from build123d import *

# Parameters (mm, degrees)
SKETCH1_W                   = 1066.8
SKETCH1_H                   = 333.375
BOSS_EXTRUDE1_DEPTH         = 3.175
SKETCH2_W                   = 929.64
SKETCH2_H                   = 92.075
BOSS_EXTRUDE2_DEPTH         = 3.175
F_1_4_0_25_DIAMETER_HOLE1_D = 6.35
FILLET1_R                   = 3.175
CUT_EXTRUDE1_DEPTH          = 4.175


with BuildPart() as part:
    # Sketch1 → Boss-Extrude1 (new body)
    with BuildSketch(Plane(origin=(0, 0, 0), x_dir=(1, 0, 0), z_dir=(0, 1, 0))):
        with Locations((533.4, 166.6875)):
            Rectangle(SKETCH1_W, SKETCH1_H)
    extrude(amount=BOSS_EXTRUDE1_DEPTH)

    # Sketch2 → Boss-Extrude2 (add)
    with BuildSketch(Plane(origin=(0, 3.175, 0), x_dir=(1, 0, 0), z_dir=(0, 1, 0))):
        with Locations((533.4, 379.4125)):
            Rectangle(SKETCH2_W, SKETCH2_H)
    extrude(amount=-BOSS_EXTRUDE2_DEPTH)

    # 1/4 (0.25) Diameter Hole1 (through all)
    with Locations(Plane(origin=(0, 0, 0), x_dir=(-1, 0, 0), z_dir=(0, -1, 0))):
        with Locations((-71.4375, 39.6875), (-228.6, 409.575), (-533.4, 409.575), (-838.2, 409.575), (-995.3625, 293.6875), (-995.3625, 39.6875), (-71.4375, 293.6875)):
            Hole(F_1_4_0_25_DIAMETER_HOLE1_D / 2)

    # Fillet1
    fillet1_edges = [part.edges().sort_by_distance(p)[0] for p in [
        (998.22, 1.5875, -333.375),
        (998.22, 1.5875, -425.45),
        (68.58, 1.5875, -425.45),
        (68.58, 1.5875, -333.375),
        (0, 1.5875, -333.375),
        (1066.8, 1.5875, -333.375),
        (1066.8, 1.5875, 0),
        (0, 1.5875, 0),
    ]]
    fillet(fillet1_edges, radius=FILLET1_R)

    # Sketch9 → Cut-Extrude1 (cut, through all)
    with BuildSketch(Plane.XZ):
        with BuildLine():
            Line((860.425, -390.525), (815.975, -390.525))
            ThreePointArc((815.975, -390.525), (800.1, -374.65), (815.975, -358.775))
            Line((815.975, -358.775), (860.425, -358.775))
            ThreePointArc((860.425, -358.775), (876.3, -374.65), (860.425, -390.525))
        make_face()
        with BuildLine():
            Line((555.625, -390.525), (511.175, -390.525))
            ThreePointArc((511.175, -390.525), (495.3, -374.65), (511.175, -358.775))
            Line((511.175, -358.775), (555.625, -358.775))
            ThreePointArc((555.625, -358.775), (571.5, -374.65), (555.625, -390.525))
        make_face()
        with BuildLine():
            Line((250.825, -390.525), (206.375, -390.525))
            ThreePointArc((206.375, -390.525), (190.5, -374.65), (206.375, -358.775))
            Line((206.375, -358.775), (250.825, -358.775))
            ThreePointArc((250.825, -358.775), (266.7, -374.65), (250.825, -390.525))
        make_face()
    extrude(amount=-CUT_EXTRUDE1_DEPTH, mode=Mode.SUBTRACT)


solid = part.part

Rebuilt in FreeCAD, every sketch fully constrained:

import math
import FreeCAD as App
import Part
import Sketcher
Q = App.Units.Quantity


def edges_at(feature, points):
    """Names of the edges that pass closest to the given points."""
    edges = feature.Shape.Edges
    near = lambda p: min(range(len(edges)), key=lambda i: edges[i].distToShape(Part.Vertex(*p))[0])
    return sorted({f"Edge{near(p) + 1}" for p in points})


def add_polygon(sketch, points):
    """Adds a closed chain of lines whose ends are joined by coincident constraints."""
    first, n = sketch.GeometryCount, len(points)
    for a, b in zip(points, points[1:] + points[:1]):
        sketch.addGeometry(Part.LineSegment(App.Vector(*a, 0), App.Vector(*b, 0)), False)
    for i in range(n):
        sketch.addConstraint(Sketcher.Constraint("Coincident", first + i, 2, first + (i + 1) % n, 1))

doc = App.newDocument("Part")
params = doc.addObject("Spreadsheet::Sheet", "Params")
for row, (alias, value) in enumerate([
    ("sketch1_width", "42 in"),
    ("sketch1_height", "13.125 in"),
    ("pad1_length", "0.125 in"),
    ("sketch2_width", "36.6 in"),
    ("sketch2_height", "3.625 in"),
    ("pad2_length", "0.125 in"),
    ("sketch3_diameter", "0.25 in"),
    ("hole_diameter", "0.25 in"),
    ("fillet_radius", "0.125 in"),
    ("sketch4_radius", "0.625 in"),
    ("sketch4_width", "1.75 in"),
], start=1):
    params.set(f"A{row}", alias)
    params.set(f"B{row}", "=" + value)
    params.setAlias(f"B{row}", alias)

body = doc.addObject("PartDesign::Body", "Body")

sketch1 = body.newObject("Sketcher::SketchObject", "Sketch")
sketch1.AttachmentSupport = (doc.getObject("XZ_Plane"), [""])
sketch1.MapMode = "FlatFace"
add_polygon(sketch1, [(0, -333), (0, 0), (1067, 0), (1067, -333)])
sketch1.addConstraint(Sketcher.Constraint("Vertical", 0))
sketch1.addConstraint(Sketcher.Constraint("Horizontal", 1))
sketch1.addConstraint(Sketcher.Constraint("Vertical", 2))
sketch1.addConstraint(Sketcher.Constraint("Horizontal", 3))
sketch1.addConstraint(Sketcher.Constraint("Coincident", 0, 2, -1, 1))
sketch1.addConstraint(Sketcher.Constraint("DistanceX", 1, 1, 1, 2, Q("42 in")))
sketch1.addConstraint(Sketcher.Constraint("DistanceY", 0, 1, 0, 2, Q("13.125 in")))
sketch1.setExpression("Constraints[9]", "Params.sketch1_width")
sketch1.setExpression("Constraints[10]", "Params.sketch1_height")
pad1 = body.newObject("PartDesign::Pad", "Pad")
pad1.Profile = sketch1
pad1.setExpression("Length", "Params.pad1_length")
pad1.Reversed = True

sketch2 = body.newObject("Sketcher::SketchObject", "Sketch001")
sketch2.AttachmentSupport = (doc.getObject("XZ_Plane"), [""])
sketch2.MapMode = "FlatFace"
sketch2.AttachmentOffset = App.Placement(App.Vector(0, 0, -0.125 * 25.4), App.Rotation())
add_polygon(sketch2, [(69, -425), (69, -333), (998, -333), (998, -425)])
sketch2.addConstraint(Sketcher.Constraint("Vertical", 0))
sketch2.addConstraint(Sketcher.Constraint("Horizontal", 1))
sketch2.addConstraint(Sketcher.Constraint("Vertical", 2))
sketch2.addConstraint(Sketcher.Constraint("Horizontal", 3))
sketch2.addConstraint(Sketcher.Constraint("DistanceX", 1, 1, 1, 2, Q("36.6 in")))
sketch2.addConstraint(Sketcher.Constraint("DistanceX", -1, 1, 0, 2, Q("2.7 in")))
sketch2.addConstraint(Sketcher.Constraint("DistanceY", 0, 1, 0, 2, Q("3.625 in")))
sketch2.addConstraint(Sketcher.Constraint("DistanceY", 2, 2, -1, 1, Q("16.75 in")))
sketch2.setExpression("Constraints[8]", "Params.sketch2_width")
sketch2.setExpression("Constraints[10]", "Params.sketch2_height")
pad2 = body.newObject("PartDesign::Pad", "Pad001")
pad2.Profile = sketch2
pad2.setExpression("Length", "Params.pad2_length")

sketch3 = body.newObject("Sketcher::SketchObject", "Sketch002")
sketch3.AttachmentSupport = (doc.getObject("XZ_Plane"), [""])
sketch3.MapMode = "FlatFace"
sketch3.addGeometry(Part.Circle(App.Vector(71.4, -39.7, 0), App.Vector(0, 0, 1), 3.2), False)
sketch3.addGeometry(Part.Circle(App.Vector(228.6, -409.6, 0), App.Vector(0, 0, 1), 3.2), False)
sketch3.addGeometry(Part.Circle(App.Vector(533.4, -409.6, 0), App.Vector(0, 0, 1), 3.2), False)
sketch3.addGeometry(Part.Circle(App.Vector(838.2, -409.6, 0), App.Vector(0, 0, 1), 3.2), False)
sketch3.addGeometry(Part.Circle(App.Vector(995.4, -293.7, 0), App.Vector(0, 0, 1), 3.2), False)
sketch3.addGeometry(Part.Circle(App.Vector(995.4, -39.7, 0), App.Vector(0, 0, 1), 3.2), False)
sketch3.addGeometry(Part.Circle(App.Vector(71.4, -293.7, 0), App.Vector(0, 0, 1), 3.2), False)
sketch3.addConstraint(Sketcher.Constraint("Equal", 0, 1))
sketch3.addConstraint(Sketcher.Constraint("Equal", 1, 2))
sketch3.addConstraint(Sketcher.Constraint("Equal", 2, 3))
sketch3.addConstraint(Sketcher.Constraint("Equal", 3, 4))
sketch3.addConstraint(Sketcher.Constraint("Equal", 4, 5))
sketch3.addConstraint(Sketcher.Constraint("Equal", 5, 6))
sketch3.addConstraint(Sketcher.Constraint("Horizontal", 1, 3, 2, 3))
sketch3.addConstraint(Sketcher.Constraint("Horizontal", 2, 3, 3, 3))
sketch3.addConstraint(Sketcher.Constraint("Horizontal", 0, 3, 5, 3))
sketch3.addConstraint(Sketcher.Constraint("Horizontal", 4, 3, 6, 3))
sketch3.addConstraint(Sketcher.Constraint("Vertical", 4, 3, 5, 3))
sketch3.addConstraint(Sketcher.Constraint("Vertical", 0, 3, 6, 3))
sketch3.addConstraint(Sketcher.Constraint("Diameter", 0, Q("0.25 in")))
sketch3.addConstraint(Sketcher.Constraint("DistanceX", -1, 1, 1, 3, Q("9 in")))
sketch3.addConstraint(Sketcher.Constraint("DistanceX", -1, 1, 2, 3, Q("21 in")))
sketch3.addConstraint(Sketcher.Constraint("DistanceX", -1, 1, 3, 3, Q("33 in")))
sketch3.addConstraint(Sketcher.Constraint("DistanceY", 4, 3, 0, 3, Q("10 in")))
sketch3.addConstraint(Sketcher.Constraint("DistanceX", -1, 1, 0, 3, Q("2.8125 in")))
sketch3.addConstraint(Sketcher.Constraint("DistanceY", 0, 3, -1, 1, Q("1.5625 in")))
sketch3.addConstraint(Sketcher.Constraint("DistanceY", 1, 3, -1, 1, Q("16.125 in")))
sketch3.addConstraint(Sketcher.Constraint("DistanceX", -1, 1, 4, 3, Q("39.1875 in")))
sketch3.setExpression("Constraints[12]", "Params.sketch3_diameter")
doc.recompute()
hole = body.newObject("PartDesign::Hole", "Hole")
hole.Profile = sketch3
hole.ThreadType = "None"
hole.setExpression("Diameter", "Params.hole_diameter")
hole.DepthType = "ThroughAll"
doc.recompute()

fillet = body.newObject("PartDesign::Fillet", "Fillet")
fillet.Base = (hole, edges_at(hole, [
    (998.22, 1.587, -333.375),
    (998.22, 1.587, -425.45),
    (68.58, 1.587, -425.45),
    (68.58, 1.587, -333.375),
    (0, 1.587, -333.375),
    (1066.8, 1.587, -333.375),
    (1066.8, 1.587, 0),
    (0, 1.587, 0),
]))
fillet.setExpression("Radius", "Params.fillet_radius")

sketch4 = body.newObject("Sketcher::SketchObject", "Sketch003")
sketch4.AttachmentSupport = (doc.getObject("XZ_Plane"), [""])
sketch4.MapMode = "FlatFace"
sketch4.addGeometry(Part.LineSegment(App.Vector(816, -391, 0), App.Vector(860, -391, 0)), False)
sketch4.addGeometry(Part.ArcOfCircle(Part.Circle(App.Vector(860, -375, 0), App.Vector(0, 0, 1), 16), math.radians(-90), math.radians(90)), False)
sketch4.addGeometry(Part.LineSegment(App.Vector(860, -359, 0), App.Vector(816, -359, 0)), False)
sketch4.addGeometry(Part.ArcOfCircle(Part.Circle(App.Vector(816, -375, 0), App.Vector(0, 0, 1), 16), math.radians(90), math.radians(270)), False)
sketch4.addGeometry(Part.LineSegment(App.Vector(511, -391, 0), App.Vector(556, -391, 0)), False)
sketch4.addGeometry(Part.ArcOfCircle(Part.Circle(App.Vector(556, -375, 0), App.Vector(0, 0, 1), 16), math.radians(-90), math.radians(90)), False)
sketch4.addGeometry(Part.LineSegment(App.Vector(556, -359, 0), App.Vector(511, -359, 0)), False)
sketch4.addGeometry(Part.ArcOfCircle(Part.Circle(App.Vector(511, -375, 0), App.Vector(0, 0, 1), 16), math.radians(90), math.radians(270)), False)
sketch4.addGeometry(Part.LineSegment(App.Vector(206, -391, 0), App.Vector(251, -391, 0)), False)
sketch4.addGeometry(Part.ArcOfCircle(Part.Circle(App.Vector(251, -375, 0), App.Vector(0, 0, 1), 16), math.radians(-90), math.radians(90)), False)
sketch4.addGeometry(Part.LineSegment(App.Vector(251, -359, 0), App.Vector(206, -359, 0)), False)
sketch4.addGeometry(Part.ArcOfCircle(Part.Circle(App.Vector(206, -375, 0), App.Vector(0, 0, 1), 16), math.radians(90), math.radians(270)), False)
sketch4.addConstraint(Sketcher.Constraint("Tangent", 0, 2, 1, 1))
sketch4.addConstraint(Sketcher.Constraint("Tangent", 1, 2, 2, 1))
sketch4.addConstraint(Sketcher.Constraint("Tangent", 2, 2, 3, 1))
sketch4.addConstraint(Sketcher.Constraint("Tangent", 3, 2, 0, 1))
sketch4.addConstraint(Sketcher.Constraint("Tangent", 4, 2, 5, 1))
sketch4.addConstraint(Sketcher.Constraint("Tangent", 5, 2, 6, 1))
sketch4.addConstraint(Sketcher.Constraint("Tangent", 6, 2, 7, 1))
sketch4.addConstraint(Sketcher.Constraint("Tangent", 7, 2, 4, 1))
sketch4.addConstraint(Sketcher.Constraint("Tangent", 8, 2, 9, 1))
sketch4.addConstraint(Sketcher.Constraint("Tangent", 9, 2, 10, 1))
sketch4.addConstraint(Sketcher.Constraint("Tangent", 10, 2, 11, 1))
sketch4.addConstraint(Sketcher.Constraint("Tangent", 11, 2, 8, 1))
sketch4.addConstraint(Sketcher.Constraint("Horizontal", 0))
sketch4.addConstraint(Sketcher.Constraint("Horizontal", 2))
sketch4.addConstraint(Sketcher.Constraint("Horizontal", 4))
sketch4.addConstraint(Sketcher.Constraint("Horizontal", 6))
sketch4.addConstraint(Sketcher.Constraint("Horizontal", 8))
sketch4.addConstraint(Sketcher.Constraint("Horizontal", 10))
sketch4.addConstraint(Sketcher.Constraint("Equal", 3, 5))
sketch4.addConstraint(Sketcher.Constraint("Equal", 7, 9))
sketch4.addConstraint(Sketcher.Constraint("Horizontal", 3, 3, 5, 3))
sketch4.addConstraint(Sketcher.Constraint("Horizontal", 7, 3, 9, 3))
sketch4.addConstraint(Sketcher.Constraint("Equal", 2, 4))
sketch4.addConstraint(Sketcher.Constraint("Equal", 6, 8))
sketch4.addConstraint(Sketcher.Constraint("Radius", 1, Q("0.625 in")))
sketch4.addConstraint(Sketcher.Constraint("DistanceX", 5, 3, 1, 3, Q("12 in")))
sketch4.addConstraint(Sketcher.Constraint("DistanceX", 9, 3, 5, 3, Q("12 in")))
sketch4.addConstraint(Sketcher.Constraint("DistanceX", 0, 1, 0, 2, Q("1.75 in")))
sketch4.addConstraint(Sketcher.Constraint("DistanceY", 1, 3, -1, 1, Q("14.75 in")))
sketch4.addConstraint(Sketcher.Constraint("DistanceX", -1, 1, 1, 3, Q("33.875 in")))
sketch4.setExpression("Constraints[24]", "Params.sketch4_radius")
sketch4.setExpression("Constraints[27]", "Params.sketch4_width")
pocket1 = body.newObject("PartDesign::Pocket", "Pocket")
pocket1.Profile = sketch4
pocket1.Type = "ThroughAll"

doc.recompute()
